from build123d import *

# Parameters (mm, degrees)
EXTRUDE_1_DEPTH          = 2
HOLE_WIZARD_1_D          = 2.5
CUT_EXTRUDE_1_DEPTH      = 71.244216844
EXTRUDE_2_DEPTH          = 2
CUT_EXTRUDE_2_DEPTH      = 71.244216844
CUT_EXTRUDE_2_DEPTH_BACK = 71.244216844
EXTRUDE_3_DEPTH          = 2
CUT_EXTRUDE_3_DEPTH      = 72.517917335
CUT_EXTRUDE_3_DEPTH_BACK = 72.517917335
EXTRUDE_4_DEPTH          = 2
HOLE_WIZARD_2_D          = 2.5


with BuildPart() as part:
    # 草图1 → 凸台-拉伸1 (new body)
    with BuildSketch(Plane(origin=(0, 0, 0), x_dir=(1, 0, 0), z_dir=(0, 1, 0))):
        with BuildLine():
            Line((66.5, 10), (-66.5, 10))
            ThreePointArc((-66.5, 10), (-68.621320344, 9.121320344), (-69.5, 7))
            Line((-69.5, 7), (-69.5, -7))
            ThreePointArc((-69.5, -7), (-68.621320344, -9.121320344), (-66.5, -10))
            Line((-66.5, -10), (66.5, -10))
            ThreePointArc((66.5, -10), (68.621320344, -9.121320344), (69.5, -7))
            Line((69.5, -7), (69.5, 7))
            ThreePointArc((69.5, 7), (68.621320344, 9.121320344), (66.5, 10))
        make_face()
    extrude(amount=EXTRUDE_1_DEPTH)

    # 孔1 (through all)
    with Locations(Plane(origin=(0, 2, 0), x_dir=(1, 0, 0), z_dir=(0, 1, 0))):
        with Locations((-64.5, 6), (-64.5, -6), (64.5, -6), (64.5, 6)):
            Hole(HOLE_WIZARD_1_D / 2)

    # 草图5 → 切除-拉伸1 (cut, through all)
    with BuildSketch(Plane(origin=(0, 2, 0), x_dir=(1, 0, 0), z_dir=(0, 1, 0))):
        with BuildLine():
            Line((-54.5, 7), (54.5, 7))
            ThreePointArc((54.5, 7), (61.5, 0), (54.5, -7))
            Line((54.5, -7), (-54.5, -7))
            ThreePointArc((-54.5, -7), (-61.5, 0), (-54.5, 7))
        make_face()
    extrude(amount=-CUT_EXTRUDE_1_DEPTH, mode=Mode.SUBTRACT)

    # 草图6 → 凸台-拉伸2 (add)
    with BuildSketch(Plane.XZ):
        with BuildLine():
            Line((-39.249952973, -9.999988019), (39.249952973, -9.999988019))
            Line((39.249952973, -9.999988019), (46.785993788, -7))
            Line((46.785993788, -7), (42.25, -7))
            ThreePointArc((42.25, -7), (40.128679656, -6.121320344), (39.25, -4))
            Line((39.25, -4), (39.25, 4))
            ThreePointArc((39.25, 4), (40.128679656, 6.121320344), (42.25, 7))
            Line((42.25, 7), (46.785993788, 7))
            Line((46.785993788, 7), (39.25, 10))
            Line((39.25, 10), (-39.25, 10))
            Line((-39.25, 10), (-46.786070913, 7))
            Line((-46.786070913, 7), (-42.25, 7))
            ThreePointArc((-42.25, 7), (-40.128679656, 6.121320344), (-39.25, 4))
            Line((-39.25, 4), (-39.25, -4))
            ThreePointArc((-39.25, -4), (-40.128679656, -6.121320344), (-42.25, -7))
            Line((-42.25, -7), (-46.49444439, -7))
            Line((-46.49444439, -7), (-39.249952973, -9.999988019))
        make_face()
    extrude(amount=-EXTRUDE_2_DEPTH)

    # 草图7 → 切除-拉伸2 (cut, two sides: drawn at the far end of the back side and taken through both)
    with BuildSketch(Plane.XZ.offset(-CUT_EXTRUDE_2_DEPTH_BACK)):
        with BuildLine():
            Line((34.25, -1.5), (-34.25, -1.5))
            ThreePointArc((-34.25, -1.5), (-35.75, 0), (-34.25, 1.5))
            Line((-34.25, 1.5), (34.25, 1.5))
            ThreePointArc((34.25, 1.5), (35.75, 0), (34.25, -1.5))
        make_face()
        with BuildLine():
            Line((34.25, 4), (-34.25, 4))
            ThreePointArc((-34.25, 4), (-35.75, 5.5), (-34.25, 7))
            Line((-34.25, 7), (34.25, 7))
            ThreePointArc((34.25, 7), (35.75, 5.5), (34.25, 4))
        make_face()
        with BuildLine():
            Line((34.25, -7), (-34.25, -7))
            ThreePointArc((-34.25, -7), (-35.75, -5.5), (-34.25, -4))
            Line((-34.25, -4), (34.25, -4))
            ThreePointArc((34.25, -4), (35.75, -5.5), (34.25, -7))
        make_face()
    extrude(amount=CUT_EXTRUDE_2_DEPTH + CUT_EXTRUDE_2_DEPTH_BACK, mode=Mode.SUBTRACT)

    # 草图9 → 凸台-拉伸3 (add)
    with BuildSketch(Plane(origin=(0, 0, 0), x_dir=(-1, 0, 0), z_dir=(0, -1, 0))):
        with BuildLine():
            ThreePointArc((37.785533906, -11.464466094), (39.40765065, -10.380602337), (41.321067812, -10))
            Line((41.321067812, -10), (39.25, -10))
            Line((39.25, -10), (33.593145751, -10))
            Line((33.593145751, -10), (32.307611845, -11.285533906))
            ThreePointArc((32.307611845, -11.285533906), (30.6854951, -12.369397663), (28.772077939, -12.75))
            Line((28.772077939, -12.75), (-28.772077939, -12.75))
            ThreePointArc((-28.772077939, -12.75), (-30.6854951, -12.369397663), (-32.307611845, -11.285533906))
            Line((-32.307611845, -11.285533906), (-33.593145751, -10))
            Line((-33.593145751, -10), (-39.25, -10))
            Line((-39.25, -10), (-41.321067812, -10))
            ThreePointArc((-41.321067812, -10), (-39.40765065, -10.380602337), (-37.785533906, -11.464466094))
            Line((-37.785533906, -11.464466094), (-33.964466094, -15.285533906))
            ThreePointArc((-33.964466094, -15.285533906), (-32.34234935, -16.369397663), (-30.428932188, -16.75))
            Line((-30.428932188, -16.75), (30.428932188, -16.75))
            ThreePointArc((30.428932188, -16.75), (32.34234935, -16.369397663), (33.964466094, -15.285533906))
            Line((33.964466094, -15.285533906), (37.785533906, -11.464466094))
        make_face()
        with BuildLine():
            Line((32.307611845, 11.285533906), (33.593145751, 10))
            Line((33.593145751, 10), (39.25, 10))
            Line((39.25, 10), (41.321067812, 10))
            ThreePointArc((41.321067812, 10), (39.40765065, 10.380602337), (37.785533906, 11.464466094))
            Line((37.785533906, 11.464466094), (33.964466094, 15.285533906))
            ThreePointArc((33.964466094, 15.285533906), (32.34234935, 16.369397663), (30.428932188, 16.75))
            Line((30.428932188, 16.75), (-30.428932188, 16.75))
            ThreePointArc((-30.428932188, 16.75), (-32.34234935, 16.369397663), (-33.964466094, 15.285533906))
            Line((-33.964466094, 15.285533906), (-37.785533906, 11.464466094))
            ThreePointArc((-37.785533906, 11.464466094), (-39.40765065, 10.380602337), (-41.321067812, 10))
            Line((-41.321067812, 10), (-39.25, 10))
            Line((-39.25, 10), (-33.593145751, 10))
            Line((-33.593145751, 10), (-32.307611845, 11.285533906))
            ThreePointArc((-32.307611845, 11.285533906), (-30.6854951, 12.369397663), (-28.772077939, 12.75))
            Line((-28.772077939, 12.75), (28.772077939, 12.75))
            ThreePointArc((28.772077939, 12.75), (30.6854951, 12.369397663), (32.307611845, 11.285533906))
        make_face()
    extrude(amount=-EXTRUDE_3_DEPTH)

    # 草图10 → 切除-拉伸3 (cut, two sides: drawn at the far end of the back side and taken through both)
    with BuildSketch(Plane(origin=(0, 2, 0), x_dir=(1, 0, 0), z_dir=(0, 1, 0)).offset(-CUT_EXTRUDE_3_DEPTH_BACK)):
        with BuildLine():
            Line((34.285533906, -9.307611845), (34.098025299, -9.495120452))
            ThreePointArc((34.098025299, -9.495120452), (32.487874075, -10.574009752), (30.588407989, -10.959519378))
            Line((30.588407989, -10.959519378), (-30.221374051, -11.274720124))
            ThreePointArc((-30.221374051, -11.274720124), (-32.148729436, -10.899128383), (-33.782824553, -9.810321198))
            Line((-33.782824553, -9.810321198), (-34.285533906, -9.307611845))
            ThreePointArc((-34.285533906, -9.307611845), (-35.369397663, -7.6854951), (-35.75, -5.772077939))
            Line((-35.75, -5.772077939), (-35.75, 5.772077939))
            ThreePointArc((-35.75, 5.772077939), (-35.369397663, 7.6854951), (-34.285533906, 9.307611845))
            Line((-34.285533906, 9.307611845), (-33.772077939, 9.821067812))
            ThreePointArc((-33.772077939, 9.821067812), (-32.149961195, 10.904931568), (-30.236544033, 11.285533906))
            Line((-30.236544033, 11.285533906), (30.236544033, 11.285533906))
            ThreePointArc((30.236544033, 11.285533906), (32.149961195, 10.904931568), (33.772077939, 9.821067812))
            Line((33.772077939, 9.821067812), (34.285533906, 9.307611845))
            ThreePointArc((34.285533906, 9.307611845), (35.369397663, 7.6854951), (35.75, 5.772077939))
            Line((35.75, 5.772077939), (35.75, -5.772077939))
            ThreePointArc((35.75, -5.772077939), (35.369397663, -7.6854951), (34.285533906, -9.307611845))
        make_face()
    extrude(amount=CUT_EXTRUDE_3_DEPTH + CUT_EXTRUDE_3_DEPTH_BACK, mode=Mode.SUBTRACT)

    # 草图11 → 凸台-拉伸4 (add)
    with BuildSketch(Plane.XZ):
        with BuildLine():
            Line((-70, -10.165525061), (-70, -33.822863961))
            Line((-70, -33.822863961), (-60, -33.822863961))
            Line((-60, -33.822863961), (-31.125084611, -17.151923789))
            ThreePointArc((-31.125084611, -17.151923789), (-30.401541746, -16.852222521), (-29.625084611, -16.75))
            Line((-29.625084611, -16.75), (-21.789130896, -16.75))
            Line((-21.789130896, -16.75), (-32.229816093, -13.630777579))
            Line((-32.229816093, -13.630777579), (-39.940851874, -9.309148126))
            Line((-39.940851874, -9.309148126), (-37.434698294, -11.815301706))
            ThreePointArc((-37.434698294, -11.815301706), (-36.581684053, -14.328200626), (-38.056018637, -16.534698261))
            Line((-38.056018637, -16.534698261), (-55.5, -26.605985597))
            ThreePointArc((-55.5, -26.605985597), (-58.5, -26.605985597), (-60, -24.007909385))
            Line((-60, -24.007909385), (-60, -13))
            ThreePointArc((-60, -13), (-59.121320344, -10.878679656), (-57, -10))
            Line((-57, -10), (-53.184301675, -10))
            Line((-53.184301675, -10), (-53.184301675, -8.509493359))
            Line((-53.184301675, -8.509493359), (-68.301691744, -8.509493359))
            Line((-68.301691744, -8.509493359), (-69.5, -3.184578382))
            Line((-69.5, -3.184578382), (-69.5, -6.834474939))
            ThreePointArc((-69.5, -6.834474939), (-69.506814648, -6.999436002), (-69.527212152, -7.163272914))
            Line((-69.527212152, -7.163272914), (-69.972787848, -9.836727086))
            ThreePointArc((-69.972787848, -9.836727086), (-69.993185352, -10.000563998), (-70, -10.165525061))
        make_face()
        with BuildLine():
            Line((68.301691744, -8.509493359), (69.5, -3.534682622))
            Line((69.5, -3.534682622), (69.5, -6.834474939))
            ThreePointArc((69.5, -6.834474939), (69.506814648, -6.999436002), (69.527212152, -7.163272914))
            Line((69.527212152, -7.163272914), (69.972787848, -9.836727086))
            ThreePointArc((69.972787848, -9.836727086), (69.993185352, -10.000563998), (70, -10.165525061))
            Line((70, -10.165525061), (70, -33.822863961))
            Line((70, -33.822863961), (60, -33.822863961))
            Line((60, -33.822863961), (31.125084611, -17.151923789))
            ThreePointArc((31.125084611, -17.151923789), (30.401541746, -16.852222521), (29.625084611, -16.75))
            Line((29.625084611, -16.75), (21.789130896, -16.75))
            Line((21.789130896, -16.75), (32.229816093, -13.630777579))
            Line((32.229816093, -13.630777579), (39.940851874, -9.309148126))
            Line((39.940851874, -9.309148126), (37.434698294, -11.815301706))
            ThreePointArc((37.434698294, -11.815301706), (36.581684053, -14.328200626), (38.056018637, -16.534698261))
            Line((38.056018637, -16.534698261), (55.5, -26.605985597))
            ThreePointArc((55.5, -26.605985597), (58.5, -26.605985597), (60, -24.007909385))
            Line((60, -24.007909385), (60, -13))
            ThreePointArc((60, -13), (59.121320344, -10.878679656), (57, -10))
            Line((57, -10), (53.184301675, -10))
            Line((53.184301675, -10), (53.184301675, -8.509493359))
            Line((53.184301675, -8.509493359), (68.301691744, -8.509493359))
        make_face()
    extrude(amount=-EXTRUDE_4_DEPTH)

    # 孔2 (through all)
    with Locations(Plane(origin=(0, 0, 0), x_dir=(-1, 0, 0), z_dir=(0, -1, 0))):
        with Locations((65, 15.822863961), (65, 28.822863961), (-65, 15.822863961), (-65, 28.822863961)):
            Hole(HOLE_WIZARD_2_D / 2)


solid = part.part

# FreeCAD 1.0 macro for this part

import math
import FreeCAD as App
import Part
import Sketcher
from FreeCAD import Vector
Q = App.Units.Quantity

doc = App.newDocument("Part")
body = doc.addObject("PartDesign::Body", "Body")

sketch1 = body.newObject("Sketcher::SketchObject", "Sketch")
sketch1.AttachmentSupport = (doc.getObject("XZ_Plane"), [""])
sketch1.MapMode = "FlatFace"
sketch1.addGeometry([
    Part.LineSegment(Vector(66.5, -10, 0), Vector(-66.5, -10, 0)),
    Part.ArcOfCircle(Part.Circle(Vector(-66.5, -7, 0), Vector(0, 0, 1), 3), math.radians(180), math.radians(270)),
    Part.LineSegment(Vector(-69.5, -7, 0), Vector(-69.5, 7, 0)),
    Part.ArcOfCircle(Part.Circle(Vector(-66.5, 7, 0), Vector(0, 0, 1), 3), math.radians(90), math.radians(180)),
    Part.LineSegment(Vector(-66.5, 10, 0), Vector(66.5, 10, 0)),
    Part.ArcOfCircle(Part.Circle(Vector(66.5, 7, 0), Vector(0, 0, 1), 3), math.radians(0), math.radians(90)),
    Part.LineSegment(Vector(69.5, 7, 0), Vector(69.5, -7, 0)),
    Part.ArcOfCircle(Part.Circle(Vector(66.5, -7, 0), Vector(0, 0, 1), 3), math.radians(-90), math.radians(0)),
], False)
sketch1.addConstraint([
    Sketcher.Constraint("Tangent", 0, 2, 1, 2),
    Sketcher.Constraint("Tangent", 1, 1, 2, 1),
    Sketcher.Constraint("Tangent", 2, 2, 3, 2),
    Sketcher.Constraint("Tangent", 3, 1, 4, 1),
    Sketcher.Constraint("Tangent", 4, 2, 5, 2),
    Sketcher.Constraint("Tangent", 5, 1, 6, 1),
    Sketcher.Constraint("Tangent", 6, 2, 7, 2),
    Sketcher.Constraint("Tangent", 7, 1, 0, 1),
    Sketcher.Constraint("Horizontal", 0),
    Sketcher.Constraint("Vertical", 2),
    Sketcher.Constraint("Horizontal", 4),
    Sketcher.Constraint("Vertical", 6),
    Sketcher.Constraint("Equal", 1, 3),
    Sketcher.Constraint("Equal", 3, 5),
    Sketcher.Constraint("Equal", 5, 7),
    Sketcher.Constraint("Symmetric", 1, 3, 5, 3, -1, 1),
    Sketcher.Constraint("Radius", 1, Q("3 mm")),
    Sketcher.Constraint("DistanceX", 0, 2, 0, 1, Q("133 mm")),
    Sketcher.Constraint("DistanceY", 2, 1, 2, 2, Q("14 mm")),
])
pad1 = body.newObject("PartDesign::Pad", "Pad")
pad1.Profile = sketch1
pad1.Length = 2
pad1.Reversed = True

sketch2 = body.newObject("Sketcher::SketchObject", "Sketch001")
sketch2.AttachmentSupport = (doc.getObject("XZ_Plane"), [""])
sketch2.MapMode = "FlatFace"
sketch2.AttachmentOffset = App.Placement(Vector(0, 0, -2), App.Rotation())
sketch2.addGeometry([
    Part.Circle(Vector(-64.5, -6, 0), Vector(0, 0, 1), 1.2),
    Part.Circle(Vector(-64.5, 6, 0), Vector(0, 0, 1), 1.2),
    Part.Circle(Vector(64.5, 6, 0), Vector(0, 0, 1), 1.2),
    Part.Circle(Vector(64.5, -6, 0), Vector(0, 0, 1), 1.2),
], False)
sketch2.addConstraint([
    Sketcher.Constraint("Equal", 0, 1),
    Sketcher.Constraint("Equal", 1, 2),
    Sketcher.Constraint("Equal", 2, 3),
    Sketcher.Constraint("Symmetric", 0, 3, 2, 3, -1, 1),
    Sketcher.Constraint("Symmetric", 1, 3, 3, 3, -1, 1),
    Sketcher.Constraint("Symmetric", 1, 3, 2, 3, -2),
    Sketcher.Constraint("Diameter", 0, Q("2.5 mm")),
    Sketcher.Constraint("DistanceY", 0, 3, -1, 1, Q("6 mm")),
    Sketcher.Constraint("DistanceX", 1, 3, 2, 3, Q("129 mm")),
])
doc.recompute()
hole = body.newObject("PartDesign::Hole", "Hole")
hole.Profile = sketch2
hole.ThreadType = "None"
hole.Diameter = 2.5
hole.DepthType = "ThroughAll"
hole.Reversed = True

sketch3 = body.newObject("Sketcher::SketchObject", "Sketch002")
sketch3.AttachmentSupport = (doc.getObject("XZ_Plane"), [""])
sketch3.MapMode = "FlatFace"
sketch3.AttachmentOffset = App.Placement(Vector(0, 0, -2), App.Rotation())
sketch3.addGeometry([
    Part.LineSegment(Vector(54, -7, 0), Vector(-54, -7, 0)),
    Part.ArcOfCircle(Part.Circle(Vector(-54, 0, 0), Vector(0, 0, 1), 7), math.radians(90), math.radians(270)),
    Part.LineSegment(Vector(-54, 7, 0), Vector(54, 7, 0)),
    Part.ArcOfCircle(Part.Circle(Vector(54, 0, 0), Vector(0, 0, 1), 7), math.radians(-90), math.radians(90)),
], False)
sketch3.addConstraint([
    Sketcher.Constraint("Tangent", 0, 2, 1, 2),
    Sketcher.Constraint("Tangent", 1, 1, 2, 1),
    Sketcher.Constraint("Tangent", 2, 2, 3, 2),
    Sketcher.Constraint("Tangent", 3, 1, 0, 1),
    Sketcher.Constraint("Horizontal", 0),
    Sketcher.Constraint("Horizontal", 2),
    Sketcher.Constraint("Symmetric", 1, 3, 3, 3, -1, 1),
    Sketcher.Constraint("Radius", 1, Q("7 mm")),
    Sketcher.Constraint("DistanceX", 0, 2, 0, 1, Q("109 mm")),
])
pocket1 = body.newObject("PartDesign::Pocket", "Pocket")
pocket1.Profile = sketch3
pocket1.Type = "ThroughAll"
pocket1.Reversed = True

sketch4 = body.newObject("Sketcher::SketchObject", "Sketch003")
sketch4.AttachmentSupport = (doc.getObject("XZ_Plane"), [""])
sketch4.MapMode = "FlatFace"
sketch4.addGeometry([
    Part.LineSegment(Vector(-39.2, -10, 0), Vector(39.2, -10, 0)),
    Part.LineSegment(Vector(39.2, -10, 0), Vector(46.8, -7, 0)),
    Part.LineSegment(Vector(46.8, -7, 0), Vector(42.2, -7, 0)),
    Part.ArcOfCircle(Part.Circle(Vector(42.2, -4, 0), Vector(0, 0, 1), 3), math.radians(180), math.radians(270)),
    Part.LineSegment(Vector(39.2, -4, 0), Vector(39.2, 4, 0)),
    Part.ArcOfCircle(Part.Circle(Vector(42.2, 4, 0), Vector(0, 0, 1), 3), math.radians(90), math.radians(180)),
    Part.LineSegment(Vector(42.2, 7, 0), Vector(46.8, 7, 0)),
    Part.LineSegment(Vector(46.8, 7, 0), Vector(39.2, 10, 0)),
    Part.LineSegment(Vector(39.2, 10, 0), Vector(-39.2, 10, 0)),
    Part.LineSegment(Vector(-39.2, 10, 0), Vector(-46.8, 7, 0)),
    Part.LineSegment(Vector(-46.8, 7, 0), Vector(-42.2, 7, 0)),
    Part.ArcOfCircle(Part.Circle(Vector(-42.2, 4, 0), Vector(0, 0, 1), 3), math.radians(0), math.radians(90)),
    Part.LineSegment(Vector(-39.2, 4, 0), Vector(-39.2, -4, 0)),
    Part.ArcOfCircle(Part.Circle(Vector(-42.2, -4, 0), Vector(0, 0, 1), 3), math.radians(-90), math.radians(0)),
    Part.LineSegment(Vector(-42.2, -7, 0), Vector(-46.5, -7, 0)),
    Part.LineSegment(Vector(-46.5, -7, 0), Vector(-39.2, -10, 0)),
], False)
sketch4.addConstraint([
    Sketcher.Constraint("Coincident", 0, 2, 1, 1),
    Sketcher.Constraint("Coincident", 1, 2, 2, 1),
    Sketcher.Constraint("Tangent", 2, 2, 3, 2),
    Sketcher.Constraint("Tangent", 3, 1, 4, 1),
    Sketcher.Constraint("Tangent", 4, 2, 5, 2),
    Sketcher.Constraint("Tangent", 5, 1, 6, 1),
    Sketcher.Constraint("Coincident", 6, 2, 7, 1),
    Sketcher.Constraint("Coincident", 7, 2, 8, 1),
    Sketcher.Constraint("Coincident", 8, 2, 9, 1),
    Sketcher.Constraint("Coincident", 9, 2, 10, 1),
    Sketcher.Constraint("Tangent", 10, 2, 11, 2),
    Sketcher.Constraint("Tangent", 11, 1, 12, 1),
    Sketcher.Constraint("Tangent", 12, 2, 13, 2),
    Sketcher.Constraint("Tangent", 13, 1, 14, 1),
    Sketcher.Constraint("Coincident", 14, 2, 15, 1),
    Sketcher.Constraint("Coincident", 15, 2, 0, 1),
    Sketcher.Constraint("Horizontal", 0),
    Sketcher.Constraint("Horizontal", 2),
    Sketcher.Constraint("Vertical", 4),
    Sketcher.Constraint("Horizontal", 6),
    Sketcher.Constraint("Horizontal", 8),
    Sketcher.Constraint("Horizontal", 10),
    Sketcher.Constraint("Vertical", 12),
    Sketcher.Constraint("Horizontal", 14),
    Sketcher.Constraint("Equal", 3, 5),
    Sketcher.Constraint("Equal", 5, 11),
    Sketcher.Constraint("Equal", 11, 13),
    Sketcher.Constraint("Symmetric", 3, 3, 11, 3, -1, 1),
    Sketcher.Constraint("Symmetric", 1, 2, 6, 2, -1),
    Sketcher.Constraint("Parallel", 1, 9),
    Sketcher.Constraint("Horizontal", 3, 3, 13, 3),
    Sketcher.Constraint("Vertical", 4, 2, 7, 2),
    Sketcher.Constraint("Vertical", 8, 2, 11, 1),
    Sketcher.Constraint("Radius", 3, Q("3 mm")),
    Sketcher.Constraint("DistanceY", 4, 1, 4, 2, Q("8 mm")),
    Sketcher.Constraint("DistanceX", 8, 2, 8, 1, Q("78.5 mm")),
    Sketcher.Constraint("DistanceY", -1, 1, 7, 2, Q("10 mm")),
    Sketcher.Constraint("DistanceX", 10, 1, 10, 2, Q("4.536071 mm")),
    Sketcher.Constraint("DistanceX", 0, 1, 0, 2, Q("78.499906 mm")),
    Sketcher.Constraint("DistanceX", 2, 2, 2, 1, Q("4.535994 mm")),
    Sketcher.Constraint("DistanceX", 14, 2, 14, 1, Q("4.244444 mm")),
    Sketcher.Constraint("DistanceY", 0, 2, -1, 1, Q("9.999988 mm")),
])
pad2 = body.newObject("PartDesign::Pad", "Pad001")
pad2.Profile = sketch4
pad2.Length = 2
pad2.Reversed = True

sketch5 = body.newObject("Sketcher::SketchObject", "Sketch004")
sketch5.AttachmentSupport = (doc.getObject("XZ_Plane"), [""])
sketch5.MapMode = "FlatFace"
sketch5.addGeometry([
    Part.LineSegment(Vector(-34.2, -1.5, 0), Vector(34.2, -1.5, 0)),
    Part.ArcOfCircle(Part.Circle(Vector(34.2, 0, 0), Vector(0, 0, 1), 1.5), math.radians(-90), math.radians(90)),
    Part.LineSegment(Vector(34.2, 1.5, 0), Vector(-34.2, 1.5, 0)),
    Part.ArcOfCircle(Part.Circle(Vector(-34.2, 0, 0), Vector(0, 0, 1), 1.5), math.radians(90), math.radians(270)),
    Part.LineSegment(Vector(-34.2, 4, 0), Vector(34.2, 4, 0)),
    Part.ArcOfCircle(Part.Circle(Vector(34.2, 5.5, 0), Vector(0, 0, 1), 1.5), math.radians(-90), math.radians(90)),
    Part.LineSegment(Vector(34.2, 7, 0), Vector(-34.2, 7, 0)),
    Part.ArcOfCircle(Part.Circle(Vector(-34.2, 5.5, 0), Vector(0, 0, 1), 1.5), math.radians(90), math.radians(270)),
    Part.LineSegment(Vector(-34.2, -7, 0), Vector(34.2, -7, 0)),
    Part.ArcOfCircle(Part.Circle(Vector(34.2, -5.5, 0), Vector(0, 0, 1), 1.5), math.radians(-90), math.radians(90)),
    Part.LineSegment(Vector(34.2, -4, 0), Vector(-34.2, -4, 0)),
    Part.ArcOfCircle(Part.Circle(Vector(-34.2, -5.5, 0), Vector(0, 0, 1), 1.5), math.radians(90), math.radians(270)),
], False)
sketch5.addConstraint([
    Sketcher.Constraint("Tangent", 0, 2, 1, 1),
    Sketcher.Constraint("Tangent", 1, 2, 2, 1),
    Sketcher.Constraint("Tangent", 2, 2, 3, 1),
    Sketcher.Constraint("Tangent", 3, 2, 0, 1),
    Sketcher.Constraint("Tangent", 4, 2, 5, 1),
    Sketcher.Constraint("Tangent", 5, 2, 6, 1),
    Sketcher.Constraint("Tangent", 6, 2, 7, 1),
    Sketcher.Constraint("Tangent", 7, 2, 4, 1),
    Sketcher.Constraint("Tangent", 8, 2, 9, 1),
    Sketcher.Constraint("Tangent", 9, 2, 10, 1),
    Sketcher.Constraint("Tangent", 10, 2, 11, 1),
    Sketcher.Constraint("Tangent", 11, 2, 8, 1),
    Sketcher.Constraint("Horizontal", 0),
    Sketcher.Constraint("Horizontal", 2),
    Sketcher.Constraint("Horizontal", 4),
    Sketcher.Constraint("Horizontal", 6),
    Sketcher.Constraint("Horizontal", 8),
    Sketcher.Constraint("Horizontal", 10),
    Sketcher.Constraint("Equal", 3, 5),
    Sketcher.Constraint("Equal", 7, 9),
    Sketcher.Constraint("Symmetric", 1, 3, 3, 3, -1, 1),
    Sketcher.Constraint("Symmetric", 7, 3, 9, 3, -1, 1),
    Sketcher.Constraint("Vertical", 1, 3, 5, 3),
    Sketcher.Constraint("Vertical", 3, 3, 7, 3),
    Sketcher.Constraint("Vertical", 7, 3, 11, 3),
    Sketcher.Constraint("Radius", 1, Q("1.5 mm")),
    Sketcher.Constraint("DistanceX", 0, 1, 0, 2, Q("68.5 mm")),
    Sketcher.Constraint("DistanceY", -1, 1, 4, 2, Q("4 mm")),
])
pocket2 = body.newObject("PartDesign::Pocket", "Pocket001")
pocket2.Profile = sketch5
pocket2.Type = "ThroughAll"
pocket2.Midplane = True

sketch6 = body.newObject("Sketcher::SketchObject", "Sketch005")
sketch6.AttachmentSupport = (doc.getObject("XZ_Plane"), [""])
sketch6.MapMode = "FlatFace"
sketch6.addGeometry([
    Part.ArcOfCircle(Part.Circle(Vector(-41.3, 15, 0), Vector(0, 0, 1), 5), math.radians(-90), math.radians(-45)),
    Part.LineSegment(Vector(-41.3, 10, 0), Vector(-33.6, 10, 0)),
    Part.LineSegment(Vector(-33.6, 10, 0), Vector(-32.3, 11.3, 0)),
    Part.ArcOfCircle(Part.Circle(Vector(-28.8, 7.8, 0), Vector(0, 0, 1), 5), math.radians(90), math.radians(135)),
    Part.LineSegment(Vector(-28.8, 12.8, 0), Vector(28.8, 12.8, 0)),
    Part.ArcOfCircle(Part.Circle(Vector(28.8, 7.8, 0), Vector(0, 0, 1), 5), math.radians(45), math.radians(90)),
    Part.LineSegment(Vector(32.3, 11.3, 0), Vector(33.6, 10, 0)),
    Part.LineSegment(Vector(33.6, 10, 0), Vector(41.3, 10, 0)),
    Part.ArcOfCircle(Part.Circle(Vector(41.3, 15, 0), Vector(0, 0, 1), 5), math.radians(-135), math.radians(-90)),
    Part.LineSegment(Vector(37.8, 11.5, 0), Vector(34, 15.3, 0)),
    Part.ArcOfCircle(Part.Circle(Vector(30.4, 11.8, 0), Vector(0, 0, 1), 5), math.radians(45), math.radians(90)),
    Part.LineSegment(Vector(30.4, 16.8, 0), Vector(-30.4, 16.8, 0)),
    Part.ArcOfCircle(Part.Circle(Vector(-30.4, 11.8, 0), Vector(0, 0, 1), 5), math.radians(90), math.radians(135)),
    Part.LineSegment(Vector(-34, 15.3, 0), Vector(-37.8, 11.5, 0)),
    Part.LineSegment(Vector(-32.3, -11.3, 0), Vector(-33.6, -10, 0)),
    Part.LineSegment(Vector(-33.6, -10, 0), Vector(-41.3, -10, 0)),
    Part.ArcOfCircle(Part.Circle(Vector(-41.3, -15, 0), Vector(0, 0, 1), 5), math.radians(45), math.radians(90)),
    Part.LineSegment(Vector(-37.8, -11.5, 0), Vector(-34, -15.3, 0)),
    Part.ArcOfCircle(Part.Circle(Vector(-30.4, -11.8, 0), Vector(0, 0, 1), 5), math.radians(-135), math.radians(-90)),
    Part.LineSegment(Vector(-30.4, -16.8, 0), Vector(30.4, -16.8, 0)),
    Part.ArcOfCircle(Part.Circle(Vector(30.4, -11.8, 0), Vector(0, 0, 1), 5), math.radians(-90), math.radians(-45)),
    Part.LineSegment(Vector(34, -15.3, 0), Vector(37.8, -11.5, 0)),
    Part.ArcOfCircle(Part.Circle(Vector(41.3, -15, 0), Vector(0, 0, 1), 5), math.radians(90), math.radians(135)),
    Part.LineSegment(Vector(41.3, -10, 0), Vector(33.6, -10, 0)),
    Part.LineSegment(Vector(33.6, -10, 0), Vector(32.3, -11.3, 0)),
    Part.ArcOfCircle(Part.Circle(Vector(28.8, -7.8, 0), Vector(0, 0, 1), 5), math.radians(-90), math.radians(-45)),
    Part.LineSegment(Vector(28.8, -12.8, 0), Vector(-28.8, -12.8, 0)),
    Part.ArcOfCircle(Part.Circle(Vector(-28.8, -7.8, 0), Vector(0, 0, 1), 5), math.radians(-135), math.radians(-90)),
], False)
sketch6.addConstraint([
    Sketcher.Constraint("Tangent", 0, 1, 1, 1),
    Sketcher.Constraint("Coincident", 1, 2, 2, 1),
    Sketcher.Constraint("Tangent", 2, 2, 3, 2),
    Sketcher.Constraint("Tangent", 3, 1, 4, 1),
    Sketcher.Constraint("Tangent", 4, 2, 5, 2),
    Sketcher.Constraint("Tangent", 5, 1, 6, 1),
    Sketcher.Constraint("Coincident", 6, 2, 7, 1),
    Sketcher.Constraint("Tangent", 7, 2, 8, 2),
    Sketcher.Constraint("Tangent", 8, 1, 9, 1),
    Sketcher.Constraint("Tangent", 9, 2, 10, 1),
    Sketcher.Constraint("Tangent", 10, 2, 11, 1),
    Sketcher.Constraint("Tangent", 11, 2, 12, 1),
    Sketcher.Constraint("Tangent", 12, 2, 13, 1),
    Sketcher.Constraint("Tangent", 13, 2, 0, 2),
    Sketcher.Constraint("Coincident", 14, 2, 15, 1),
    Sketcher.Constraint("Tangent", 15, 2, 16, 2),
    Sketcher.Constraint("Tangent", 16, 1, 17, 1),
    Sketcher.Constraint("Tangent", 17, 2, 18, 1),
    Sketcher.Constraint("Tangent", 18, 2, 19, 1),
    Sketcher.Constraint("Tangent", 19, 2, 20, 1),
    Sketcher.Constraint("Tangent", 20, 2, 21, 1),
    Sketcher.Constraint("Tangent", 21, 2, 22, 2),
    Sketcher.Constraint("Tangent", 22, 1, 23, 1),
    Sketcher.Constraint("Coincident", 23, 2, 24, 1),
    Sketcher.Constraint("Tangent", 24, 2, 25, 2),
    Sketcher.Constraint("Tangent", 25, 1, 26, 1),
    Sketcher.Constraint("Tangent", 26, 2, 27, 2),
    Sketcher.Constraint("Tangent", 27, 1, 14, 1),
    Sketcher.Constraint("Horizontal", 1),
    Sketcher.Constraint("Horizontal", 4),
    Sketcher.Constraint("Horizontal", 7),
    Sketcher.Constraint("Horizontal", 11),
    Sketcher.Constraint("Horizontal", 15),
    Sketcher.Constraint("Horizontal", 19),
    Sketcher.Constraint("Horizontal", 23),
    Sketcher.Constraint("Horizontal", 26),
    Sketcher.Constraint("Equal", 0, 3),
    Sketcher.Constraint("Equal", 3, 5),
    Sketcher.Constraint("Equal", 5, 8),
    Sketcher.Constraint("Equal", 8, 10),
    Sketcher.Constraint("Equal", 10, 12),
    Sketcher.Constraint("Equal", 12, 16),
    Sketcher.Constraint("Equal", 16, 18),
    Sketcher.Constraint("Equal", 18, 20),
    Sketcher.Constraint("Equal", 20, 22),
    Sketcher.Constraint("Equal", 22, 25),
    Sketcher.Constraint("Equal", 25, 27),
    Sketcher.Constraint("Symmetric", 8, 3, 16, 3, -1, 1),
    Sketcher.Constraint("Symmetric", 10, 3, 18, 3, -1, 1),
    Sketcher.Constraint("Symmetric", 0, 3, 22, 3, -1, 1),
    Sketcher.Constraint("Symmetric", 3, 3, 25, 3, -1, 1),
    Sketcher.Constraint("Symmetric", 5, 1, 27, 1, -1, 1),
    Sketcher.Constraint("Symmetric", 0, 3, 8, 3, -2),
    Sketcher.Constraint("Symmetric", 2, 2, 5, 1, -2),
    Sketcher.Constraint("Perpendicular", 2, 6),
    Sketcher.Constraint("Parallel", 6, 9),
    Sketcher.Constraint("Perpendicular", 9, 13),
    Sketcher.Constraint("Perpendicular", 17, 21),
    Sketcher.Constraint("Parallel", 21, 24),
    Sketcher.Constraint("Radius", 0, Q("5 mm")),
    Sketcher.Constraint("DistanceY", -1, 1, 0, 3, Q("15 mm")),
    Sketcher.Constraint("DistanceY", 5, 3, 10, 3, Q("4 mm")),
    Sketcher.Constraint("DistanceY", 18, 3, 3, 3, Q("19.5 mm")),
    Sketcher.Constraint("DistanceX", 0, 3, 10, 3, Q("71.75 mm")),
    Sketcher.Constraint("DistanceX", 1, 1, 1, 2, Q("7.727922 mm")),
])
pad3 = body.newObject("PartDesign::Pad", "Pad002")
pad3.Profile = sketch6
pad3.Length = 2
pad3.Reversed = True

sketch7 = body.newObject("Sketcher::SketchObject", "Sketch006")
sketch7.AttachmentSupport = (doc.getObject("XZ_Plane"), [""])
sketch7.MapMode = "FlatFace"
sketch7.AttachmentOffset = App.Placement(Vector(0, 0, -2), App.Rotation())
sketch7.addGeometry([
    Part.LineSegment(Vector(34.1, 9.5, 0), Vector(34.29, 9.31, 0)),
    Part.ArcOfCircle(Part.Circle(Vector(30.75, 5.77, 0), Vector(0, 0, 1), 5), math.radians(0), math.radians(45)),
    Part.LineSegment(Vector(35.75, 5.77, 0), Vector(35.75, -5.77, 0)),
    Part.ArcOfCircle(Part.Circle(Vector(30.75, -5.77, 0), Vector(0, 0, 1), 5), math.radians(-45), math.radians(0)),
    Part.LineSegment(Vector(34.29, -9.31, 0), Vector(33.77, -9.82, 0)),
    Part.ArcOfCircle(Part.Circle(Vector(30.24, -6.29, 0), Vector(0, 0, 1), 5), math.radians(-90), math.radians(-45)),
    Part.LineSegment(Vector(30.24, -11.29, 0), Vector(-30.24, -11.29, 0)),
    Part.ArcOfCircle(Part.Circle(Vector(-30.24, -6.29, 0), Vector(0, 0, 1), 5), math.radians(-135), math.radians(-90)),
    Part.LineSegment(Vector(-33.77, -9.82, 0), Vector(-34.29, -9.31, 0)),
    Part.ArcOfCircle(Part.Circle(Vector(-30.75, -5.77, 0), Vector(0, 0, 1), 5), math.radians(180), math.radians(225)),
    Part.LineSegment(Vector(-35.75, -5.77, 0), Vector(-35.75, 5.77, 0)),
    Part.ArcOfCircle(Part.Circle(Vector(-30.75, 5.77, 0), Vector(0, 0, 1), 5), math.radians(135), math.radians(180)),
    Part.LineSegment(Vector(-34.29, 9.31, 0), Vector(-33.78, 9.81, 0)),
    Part.ArcOfCircle(Part.Circle(Vector(-30.25, 6.27, 0), Vector(0, 0, 1), 5), math.radians(90), math.radians(135)),
    Part.LineSegment(Vector(-30.22, 11.27, 0), Vector(30.59, 10.96, 0)),
    Part.ArcOfCircle(Part.Circle(Vector(30.56, 5.96, 0), Vector(0, 0, 1), 5), math.radians(45), math.radians(90)),
], False)
sketch7.addConstraint([
    Sketcher.Constraint("Tangent", 0, 2, 1, 2),
    Sketcher.Constraint("Tangent", 1, 1, 2, 1),
    Sketcher.Constraint("Tangent", 2, 2, 3, 2),
    Sketcher.Constraint("Tangent", 3, 1, 4, 1),
    Sketcher.Constraint("Tangent", 4, 2, 5, 2),
    Sketcher.Constraint("Tangent", 5, 1, 6, 1),
    Sketcher.Constraint("Tangent", 6, 2, 7, 2),
    Sketcher.Constraint("Tangent", 7, 1, 8, 1),
    Sketcher.Constraint("Tangent", 8, 2, 9, 2),
    Sketcher.Constraint("Tangent", 9, 1, 10, 1),
    Sketcher.Constraint("Tangent", 10, 2, 11, 2),
    Sketcher.Constraint("Tangent", 11, 1, 12, 1),
    Sketcher.Constraint("Tangent", 12, 2, 13, 2),
    Sketcher.Constraint("Tangent", 13, 1, 14, 1),
    Sketcher.Constraint("Tangent", 14, 2, 15, 2),
    Sketcher.Constraint("Tangent", 15, 1, 0, 1),
    Sketcher.Constraint("Vertical", 2),
    Sketcher.Constraint("Horizontal", 6),
    Sketcher.Constraint("Vertical", 10),
    Sketcher.Constraint("Equal", 1, 3),
    Sketcher.Constraint("Equal", 3, 5),
    Sketcher.Constraint("Equal", 5, 7),
    Sketcher.Constraint("Equal", 7, 9),
    Sketcher.Constraint("Equal", 9, 11),
    Sketcher.Constraint("Equal", 11, 13),
    Sketcher.Constraint("Equal", 13, 15),
    Sketcher.Constraint("Symmetric", 1, 3, 9, 3, -1, 1),
    Sketcher.Constraint("Symmetric", 3, 1, 11, 1, -1, 1),
    Sketcher.Constraint("Symmetric", 4, 2, 7, 1, -2),
    Sketcher.Constraint("Perpendicular", 0, 4),
    Sketcher.Constraint("Perpendicular", 4, 8),
    Sketcher.Constraint("Radius", 1, Q("5 mm")),
    Sketcher.Constraint("DistanceX", 9, 3, 3, 3, Q("61.5 mm")),
    Sketcher.Constraint("Distance", 14, Q("60.810599 mm")),
    Sketcher.Constraint("DistanceX", 6, 2, 6, 1, Q("60.473088 mm")),
    Sketcher.Constraint("DistanceY", 15, 3, 13, 3, Q("0.315201 mm")),
    Sketcher.Constraint("DistanceY", 9, 1, 12, 2, Q("15.582399 mm")),
])
pocket3 = body.newObject("PartDesign::Pocket", "Pocket002")
pocket3.Profile = sketch7
pocket3.Type = "ThroughAll"
pocket3.Midplane = True

sketch8 = body.newObject("Sketcher::SketchObject", "Sketch007")
sketch8.AttachmentSupport = (doc.getObject("XZ_Plane"), [""])
sketch8.MapMode = "FlatFace"
sketch8.addGeometry([
    Part.LineSegment(Vector(-70, -10.17, 0), Vector(-70, -33.82, 0)),
    Part.LineSegment(Vector(-70, -33.82, 0), Vector(-60, -33.82, 0)),
    Part.LineSegment(Vector(-60, -33.82, 0), Vector(-31.13, -17.15, 0)),
    Part.ArcOfCircle(Part.Circle(Vector(-29.63, -19.75, 0), Vector(0, 0, 1), 3), math.radians(90), math.radians(120)),
    Part.LineSegment(Vector(-29.63, -16.75, 0), Vector(-21.79, -16.75, 0)),
    Part.LineSegment(Vector(-21.79, -16.75, 0), Vector(-32.23, -13.63, 0)),
    Part.LineSegment(Vector(-32.23, -13.63, 0), Vector(-39.94, -9.31, 0)),
    Part.LineSegment(Vector(-39.94, -9.31, 0), Vector(-37.43, -11.82, 0)),
    Part.ArcOfCircle(Part.Circle(Vector(-39.56, -13.94, 0), Vector(0, 0, 1), 3), math.radians(-60), math.radians(45)),
    Part.LineSegment(Vector(-38.06, -16.53, 0), Vector(-55.5, -26.61, 0)),
    Part.ArcOfCircle(Part.Circle(Vector(-57, -24.01, 0), Vector(0, 0, 1), 3), math.radians(180), math.radians(300)),
    Part.LineSegment(Vector(-60, -24.01, 0), Vector(-60, -13, 0)),
    Part.ArcOfCircle(Part.Circle(Vector(-57, -13, 0), Vector(0, 0, 1), 3), math.radians(90), math.radians(180)),
    Part.LineSegment(Vector(-57, -10, 0), Vector(-53.18, -10, 0)),
    Part.LineSegment(Vector(-53.18, -10, 0), Vector(-53.18, -8.51, 0)),
    Part.LineSegment(Vector(-53.18, -8.51, 0), Vector(-68.3, -8.51, 0)),
    Part.LineSegment(Vector(-68.3, -8.51, 0), Vector(-69.5, -3.18, 0)),
    Part.LineSegment(Vector(-69.5, -3.18, 0), Vector(-69.5, -6.83, 0)),
    Part.ArcOfCircle(Part.Circle(Vector(-71.5, -6.83, 0), Vector(0, 0, 1), 2), math.radians(-9.46), math.radians(0)),
    Part.LineSegment(Vector(-69.53, -7.16, 0), Vector(-69.97, -9.84, 0)),
    Part.ArcOfCircle(Part.Circle(Vector(-68, -10.17, 0), Vector(0, 0, 1), 2), math.radians(170.54), math.radians(180)),
    Part.LineSegment(Vector(69.5, -3.53, 0), Vector(68.3, -8.51, 0)),
    Part.LineSegment(Vector(68.3, -8.51, 0), Vector(53.18, -8.51, 0)),
    Part.LineSegment(Vector(53.18, -8.51, 0), Vector(53.18, -10, 0)),
    Part.LineSegment(Vector(53.18, -10, 0), Vector(57, -10, 0)),
    Part.ArcOfCircle(Part.Circle(Vector(57, -13, 0), Vector(0, 0, 1), 3), math.radians(0), math.radians(90)),
    Part.LineSegment(Vector(60, -13, 0), Vector(60, -24.01, 0)),
    Part.ArcOfCircle(Part.Circle(Vector(57, -24.01, 0), Vector(0, 0, 1), 3), math.radians(-120), math.radians(0)),
    Part.LineSegment(Vector(55.5, -26.61, 0), Vector(38.06, -16.53, 0)),
    Part.ArcOfCircle(Part.Circle(Vector(39.56, -13.94, 0), Vector(0, 0, 1), 3), math.radians(135), math.radians(240)),
    Part.LineSegment(Vector(37.43, -11.82, 0), Vector(39.94, -9.31, 0)),
    Part.LineSegment(Vector(39.94, -9.31, 0), Vector(32.23, -13.63, 0)),
    Part.LineSegment(Vector(32.23, -13.63, 0), Vector(21.79, -16.75, 0)),
    Part.LineSegment(Vector(21.79, -16.75, 0), Vector(29.63, -16.75, 0)),
    Part.ArcOfCircle(Part.Circle(Vector(29.63, -19.75, 0), Vector(0, 0, 1), 3), math.radians(60), math.radians(90)),
    Part.LineSegment(Vector(31.13, -17.15, 0), Vector(60, -33.82, 0)),
    Part.LineSegment(Vector(60, -33.82, 0), Vector(70, -33.82, 0)),
    Part.LineSegment(Vector(70, -33.82, 0), Vector(70, -10.17, 0)),
    Part.ArcOfCircle(Part.Circle(Vector(68, -10.17, 0), Vector(0, 0, 1), 2), math.radians(0), math.radians(9.46)),
    Part.LineSegment(Vector(69.97, -9.84, 0), Vector(69.53, -7.16, 0)),
    Part.ArcOfCircle(Part.Circle(Vector(71.5, -6.83, 0), Vector(0, 0, 1), 2), math.radians(-180), math.radians(-170.54)),
    Part.LineSegment(Vector(69.5, -6.83, 0), Vector(69.5, -3.53, 0)),
], False)
sketch8.addConstraint([
    Sketcher.Constraint("Coincident", 0, 2, 1, 1),
    Sketcher.Constraint("Coincident", 1, 2, 2, 1),
    Sketcher.Constraint("Tangent", 2, 2, 3, 2),
    Sketcher.Constraint("Tangent", 3, 1, 4, 1),
    Sketcher.Constraint("Coincident", 4, 2, 5, 1),
    Sketcher.Constraint("Coincident", 5, 2, 6, 1),
    Sketcher.Constraint("Coincident", 6, 2, 7, 1),
    Sketcher.Constraint("Tangent", 7, 2, 8, 2),
    Sketcher.Constraint("Tangent", 8, 1, 9, 1),
    Sketcher.Constraint("Tangent", 9, 2, 10, 2),
    Sketcher.Constraint("Tangent", 10, 1, 11, 1),
    Sketcher.Constraint("Tangent", 11, 2, 12, 2),
    Sketcher.Constraint("Tangent", 12, 1, 13, 1),
    Sketcher.Constraint("Coincident", 13, 2, 14, 1),
    Sketcher.Constraint("Coincident", 14, 2, 15, 1),
    Sketcher.Constraint("Coincident", 15, 2, 16, 1),
    Sketcher.Constraint("Coincident", 16, 2, 17, 1),
    Sketcher.Constraint("Tangent", 17, 2, 18, 2),
    Sketcher.Constraint("Tangent", 18, 1, 19, 1),
    Sketcher.Constraint("Tangent", 19, 2, 20, 1),
    Sketcher.Constraint("Tangent", 20, 2, 0, 1),
    Sketcher.Constraint("Coincident", 21, 2, 22, 1),
    Sketcher.Constraint("Coincident", 22, 2, 23, 1),
    Sketcher.Constraint("Coincident", 23, 2, 24, 1),
    Sketcher.Constraint("Tangent", 24, 2, 25, 2),
    Sketcher.Constraint("Tangent", 25, 1, 26, 1),
    Sketcher.Constraint("Tangent", 26, 2, 27, 2),
    Sketcher.Constraint("Tangent", 27, 1, 28, 1),
    Sketcher.Constraint("Tangent", 28, 2, 29, 2),
    Sketcher.Constraint("Tangent", 29, 1, 30, 1),
    Sketcher.Constraint("Coincident", 30, 2, 31, 1),
    Sketcher.Constraint("Coincident", 31, 2, 32, 1),
    Sketcher.Constraint("Coincident", 32, 2, 33, 1),
    Sketcher.Constraint("Tangent", 33, 2, 34, 2),
    Sketcher.Constraint("Tangent", 34, 1, 35, 1),
    Sketcher.Constraint("Coincident", 35, 2, 36, 1),
    Sketcher.Constraint("Coincident", 36, 2, 37, 1),
    Sketcher.Constraint("Tangent", 37, 2, 38, 1),
    Sketcher.Constraint("Tangent", 38, 2, 39, 1),
    Sketcher.Constraint("Tangent", 39, 2, 40, 2),
    Sketcher.Constraint("Tangent", 40, 1, 41, 1),
    Sketcher.Constraint("Coincident", 41, 2, 21, 1),
    Sketcher.Constraint("Vertical", 0),
    Sketcher.Constraint("Horizontal", 1),
    Sketcher.Constraint("Horizontal", 4),
    Sketcher.Constraint("Vertical", 11),
    Sketcher.Constraint("Horizontal", 13),
    Sketcher.Constraint("Vertical", 14),
    Sketcher.Constraint("Horizontal", 15),
    Sketcher.Constraint("Vertical", 17),
    Sketcher.Constraint("Horizontal", 22),
    Sketcher.Constraint("Vertical", 23),
    Sketcher.Constraint("Horizontal", 24),
    Sketcher.Constraint("Vertical", 26),
    Sketcher.Constraint("Horizontal", 33),
    Sketcher.Constraint("Horizontal", 36),
    Sketcher.Constraint("Vertical", 37),
    Sketcher.Constraint("Vertical", 41),
    Sketcher.Constraint("Equal", 3, 8),
    Sketcher.Constraint("Equal", 8, 10),
    Sketcher.Constraint("Equal", 10, 12),
    Sketcher.Constraint("Equal", 18, 20),
    Sketcher.Constraint("Equal", 12, 25),
    Sketcher.Constraint("Equal", 25, 27),
    Sketcher.Constraint("Equal", 27, 29),
    Sketcher.Constraint("Equal", 29, 34),
    Sketcher.Constraint("Equal", 20, 38),
    Sketcher.Constraint("Equal", 38, 40),
    Sketcher.Constraint("Symmetric", 12, 3, 25, 3, -2),
    Sketcher.Constraint("Symmetric", 8, 3, 29, 3, -2),
    Sketcher.Constraint("Symmetric", 3, 3, 34, 3, -2),
    Sketcher.Constraint("Symmetric", 20, 3, 38, 3, -2),
    Sketcher.Constraint("Symmetric", 18, 3, 40, 3, -2),
    Sketcher.Constraint("Symmetric", 15, 2, 21, 2, -2),
    Sketcher.Constraint("Symmetric", 6, 2, 30, 2, -2),
    Sketcher.Constraint("Symmetric", 5, 2, 31, 2, -2),
    Sketcher.Constraint("Symmetric", 1, 2, 35, 2, -2),
    Sketcher.Constraint("Parallel", 2, 9),
    Sketcher.Constraint("Perpendicular", 7, 30),
    Sketcher.Constraint("Parallel", 28, 35),
    Sketcher.Constraint("Vertical", 1, 2, 10, 1),
    Sketcher.Constraint("Equal", 15, 22),
    Sketcher.Constraint("Equal", 4, 33),
    Sketcher.Constraint("Radius", 3, Q("3 mm")),
    Sketcher.Constraint("Radius", 18, Q("2 mm")),
    Sketcher.Constraint("DistanceX", 1, 1, 1, 2, Q("10 mm")),
    Sketcher.Constraint("Angle", 2, Q("30 deg")),
    Sketcher.Constraint("DistanceX", 10, 3, -1, 1, Q("57 mm")),
    Sketcher.Constraint("DistanceY", 12, 3, -1, 1, Q("13 mm")),
    Sketcher.Constraint("DistanceX", 18, 3, -1, 1, Q("71.5 mm")),
    Sketcher.Constraint("DistanceY", 3, 3, -1, 1, Q("19.75 mm")),
    Sketcher.Constraint("DistanceX", 13, 1, 13, 2, Q("3.815698 mm")),
    Sketcher.Constraint("DistanceX", 15, 2, 15, 1, Q("15.11739 mm")),
    Sketcher.Constraint("DistanceY", 0, 2, 0, 1, Q("23.657339 mm")),
    Sketcher.Constraint("DistanceY", 11, 1, 11, 2, Q("11.007909 mm")),
    Sketcher.Constraint("DistanceX", 7, 2, -1, 1, Q("37.434698 mm")),
    Sketcher.Constraint("Distance", 2, Q("33.34188 mm")),
    Sketcher.Constraint("Distance", 5, Q("10.896672 mm")),
    Sketcher.Constraint("Distance", 6, Q("8.839488 mm")),
    Sketcher.Constraint("Distance", 19, Q("2.710331 mm")),
    Sketcher.Constraint("DistanceX", 4, 1, 4, 2, Q("7.835954 mm")),
    Sketcher.Constraint("DistanceY", 14, 1, 14, 2, Q("1.490507 mm")),
    Sketcher.Constraint("DistanceY", 17, 2, 17, 1, Q("3.649897 mm")),
    Sketcher.Constraint("DistanceY", 41, 1, 41, 2, Q("3.299792 mm")),
    Sketcher.Constraint("DistanceX", 6, 2, -1, 1, Q("39.940852 mm")),
])
pad4 = body.newObject("PartDesign::Pad", "Pad003")
pad4.Profile = sketch8
pad4.Length = 2
pad4.Reversed = True

sketch9 = body.newObject("Sketcher::SketchObject", "Sketch008")
sketch9.AttachmentSupport = (doc.getObject("XZ_Plane"), [""])
sketch9.MapMode = "FlatFace"
sketch9.addGeometry([
    Part.Circle(Vector(-65, -15.8, 0), Vector(0, 0, 1), 1.2),
    Part.Circle(Vector(-65, -28.8, 0), Vector(0, 0, 1), 1.2),
    Part.Circle(Vector(65, -15.8, 0), Vector(0, 0, 1), 1.2),
    Part.Circle(Vector(65, -28.8, 0), Vector(0, 0, 1), 1.2),
], False)
sketch9.addConstraint([
    Sketcher.Constraint("Equal", 0, 1),
    Sketcher.Constraint("Equal", 1, 2),
    Sketcher.Constraint("Equal", 2, 3),
    Sketcher.Constraint("Symmetric", 0, 3, 2, 3, -2),
    Sketcher.Constraint("Symmetric", 1, 3, 3, 3, -2),
    Sketcher.Constraint("Vertical", 0, 3, 1, 3),
    Sketcher.Constraint("Diameter", 0, Q("2.5 mm")),
    Sketcher.Constraint("DistanceX", 0, 3, -1, 1, Q("65 mm")),
    Sketcher.Constraint("DistanceY", 1, 3, 0, 3, Q("13 mm")),
    Sketcher.Constraint("DistanceY", 0, 3, -1, 1, Q("15.822864 mm")),
])
doc.recompute()
hole2 = body.newObject("PartDesign::Hole", "Hole001")
hole2.Profile = sketch9
hole2.ThreadType = "None"
hole2.Diameter = 2.5
hole2.DepthType = "ThroughAll"

doc.recompute()
